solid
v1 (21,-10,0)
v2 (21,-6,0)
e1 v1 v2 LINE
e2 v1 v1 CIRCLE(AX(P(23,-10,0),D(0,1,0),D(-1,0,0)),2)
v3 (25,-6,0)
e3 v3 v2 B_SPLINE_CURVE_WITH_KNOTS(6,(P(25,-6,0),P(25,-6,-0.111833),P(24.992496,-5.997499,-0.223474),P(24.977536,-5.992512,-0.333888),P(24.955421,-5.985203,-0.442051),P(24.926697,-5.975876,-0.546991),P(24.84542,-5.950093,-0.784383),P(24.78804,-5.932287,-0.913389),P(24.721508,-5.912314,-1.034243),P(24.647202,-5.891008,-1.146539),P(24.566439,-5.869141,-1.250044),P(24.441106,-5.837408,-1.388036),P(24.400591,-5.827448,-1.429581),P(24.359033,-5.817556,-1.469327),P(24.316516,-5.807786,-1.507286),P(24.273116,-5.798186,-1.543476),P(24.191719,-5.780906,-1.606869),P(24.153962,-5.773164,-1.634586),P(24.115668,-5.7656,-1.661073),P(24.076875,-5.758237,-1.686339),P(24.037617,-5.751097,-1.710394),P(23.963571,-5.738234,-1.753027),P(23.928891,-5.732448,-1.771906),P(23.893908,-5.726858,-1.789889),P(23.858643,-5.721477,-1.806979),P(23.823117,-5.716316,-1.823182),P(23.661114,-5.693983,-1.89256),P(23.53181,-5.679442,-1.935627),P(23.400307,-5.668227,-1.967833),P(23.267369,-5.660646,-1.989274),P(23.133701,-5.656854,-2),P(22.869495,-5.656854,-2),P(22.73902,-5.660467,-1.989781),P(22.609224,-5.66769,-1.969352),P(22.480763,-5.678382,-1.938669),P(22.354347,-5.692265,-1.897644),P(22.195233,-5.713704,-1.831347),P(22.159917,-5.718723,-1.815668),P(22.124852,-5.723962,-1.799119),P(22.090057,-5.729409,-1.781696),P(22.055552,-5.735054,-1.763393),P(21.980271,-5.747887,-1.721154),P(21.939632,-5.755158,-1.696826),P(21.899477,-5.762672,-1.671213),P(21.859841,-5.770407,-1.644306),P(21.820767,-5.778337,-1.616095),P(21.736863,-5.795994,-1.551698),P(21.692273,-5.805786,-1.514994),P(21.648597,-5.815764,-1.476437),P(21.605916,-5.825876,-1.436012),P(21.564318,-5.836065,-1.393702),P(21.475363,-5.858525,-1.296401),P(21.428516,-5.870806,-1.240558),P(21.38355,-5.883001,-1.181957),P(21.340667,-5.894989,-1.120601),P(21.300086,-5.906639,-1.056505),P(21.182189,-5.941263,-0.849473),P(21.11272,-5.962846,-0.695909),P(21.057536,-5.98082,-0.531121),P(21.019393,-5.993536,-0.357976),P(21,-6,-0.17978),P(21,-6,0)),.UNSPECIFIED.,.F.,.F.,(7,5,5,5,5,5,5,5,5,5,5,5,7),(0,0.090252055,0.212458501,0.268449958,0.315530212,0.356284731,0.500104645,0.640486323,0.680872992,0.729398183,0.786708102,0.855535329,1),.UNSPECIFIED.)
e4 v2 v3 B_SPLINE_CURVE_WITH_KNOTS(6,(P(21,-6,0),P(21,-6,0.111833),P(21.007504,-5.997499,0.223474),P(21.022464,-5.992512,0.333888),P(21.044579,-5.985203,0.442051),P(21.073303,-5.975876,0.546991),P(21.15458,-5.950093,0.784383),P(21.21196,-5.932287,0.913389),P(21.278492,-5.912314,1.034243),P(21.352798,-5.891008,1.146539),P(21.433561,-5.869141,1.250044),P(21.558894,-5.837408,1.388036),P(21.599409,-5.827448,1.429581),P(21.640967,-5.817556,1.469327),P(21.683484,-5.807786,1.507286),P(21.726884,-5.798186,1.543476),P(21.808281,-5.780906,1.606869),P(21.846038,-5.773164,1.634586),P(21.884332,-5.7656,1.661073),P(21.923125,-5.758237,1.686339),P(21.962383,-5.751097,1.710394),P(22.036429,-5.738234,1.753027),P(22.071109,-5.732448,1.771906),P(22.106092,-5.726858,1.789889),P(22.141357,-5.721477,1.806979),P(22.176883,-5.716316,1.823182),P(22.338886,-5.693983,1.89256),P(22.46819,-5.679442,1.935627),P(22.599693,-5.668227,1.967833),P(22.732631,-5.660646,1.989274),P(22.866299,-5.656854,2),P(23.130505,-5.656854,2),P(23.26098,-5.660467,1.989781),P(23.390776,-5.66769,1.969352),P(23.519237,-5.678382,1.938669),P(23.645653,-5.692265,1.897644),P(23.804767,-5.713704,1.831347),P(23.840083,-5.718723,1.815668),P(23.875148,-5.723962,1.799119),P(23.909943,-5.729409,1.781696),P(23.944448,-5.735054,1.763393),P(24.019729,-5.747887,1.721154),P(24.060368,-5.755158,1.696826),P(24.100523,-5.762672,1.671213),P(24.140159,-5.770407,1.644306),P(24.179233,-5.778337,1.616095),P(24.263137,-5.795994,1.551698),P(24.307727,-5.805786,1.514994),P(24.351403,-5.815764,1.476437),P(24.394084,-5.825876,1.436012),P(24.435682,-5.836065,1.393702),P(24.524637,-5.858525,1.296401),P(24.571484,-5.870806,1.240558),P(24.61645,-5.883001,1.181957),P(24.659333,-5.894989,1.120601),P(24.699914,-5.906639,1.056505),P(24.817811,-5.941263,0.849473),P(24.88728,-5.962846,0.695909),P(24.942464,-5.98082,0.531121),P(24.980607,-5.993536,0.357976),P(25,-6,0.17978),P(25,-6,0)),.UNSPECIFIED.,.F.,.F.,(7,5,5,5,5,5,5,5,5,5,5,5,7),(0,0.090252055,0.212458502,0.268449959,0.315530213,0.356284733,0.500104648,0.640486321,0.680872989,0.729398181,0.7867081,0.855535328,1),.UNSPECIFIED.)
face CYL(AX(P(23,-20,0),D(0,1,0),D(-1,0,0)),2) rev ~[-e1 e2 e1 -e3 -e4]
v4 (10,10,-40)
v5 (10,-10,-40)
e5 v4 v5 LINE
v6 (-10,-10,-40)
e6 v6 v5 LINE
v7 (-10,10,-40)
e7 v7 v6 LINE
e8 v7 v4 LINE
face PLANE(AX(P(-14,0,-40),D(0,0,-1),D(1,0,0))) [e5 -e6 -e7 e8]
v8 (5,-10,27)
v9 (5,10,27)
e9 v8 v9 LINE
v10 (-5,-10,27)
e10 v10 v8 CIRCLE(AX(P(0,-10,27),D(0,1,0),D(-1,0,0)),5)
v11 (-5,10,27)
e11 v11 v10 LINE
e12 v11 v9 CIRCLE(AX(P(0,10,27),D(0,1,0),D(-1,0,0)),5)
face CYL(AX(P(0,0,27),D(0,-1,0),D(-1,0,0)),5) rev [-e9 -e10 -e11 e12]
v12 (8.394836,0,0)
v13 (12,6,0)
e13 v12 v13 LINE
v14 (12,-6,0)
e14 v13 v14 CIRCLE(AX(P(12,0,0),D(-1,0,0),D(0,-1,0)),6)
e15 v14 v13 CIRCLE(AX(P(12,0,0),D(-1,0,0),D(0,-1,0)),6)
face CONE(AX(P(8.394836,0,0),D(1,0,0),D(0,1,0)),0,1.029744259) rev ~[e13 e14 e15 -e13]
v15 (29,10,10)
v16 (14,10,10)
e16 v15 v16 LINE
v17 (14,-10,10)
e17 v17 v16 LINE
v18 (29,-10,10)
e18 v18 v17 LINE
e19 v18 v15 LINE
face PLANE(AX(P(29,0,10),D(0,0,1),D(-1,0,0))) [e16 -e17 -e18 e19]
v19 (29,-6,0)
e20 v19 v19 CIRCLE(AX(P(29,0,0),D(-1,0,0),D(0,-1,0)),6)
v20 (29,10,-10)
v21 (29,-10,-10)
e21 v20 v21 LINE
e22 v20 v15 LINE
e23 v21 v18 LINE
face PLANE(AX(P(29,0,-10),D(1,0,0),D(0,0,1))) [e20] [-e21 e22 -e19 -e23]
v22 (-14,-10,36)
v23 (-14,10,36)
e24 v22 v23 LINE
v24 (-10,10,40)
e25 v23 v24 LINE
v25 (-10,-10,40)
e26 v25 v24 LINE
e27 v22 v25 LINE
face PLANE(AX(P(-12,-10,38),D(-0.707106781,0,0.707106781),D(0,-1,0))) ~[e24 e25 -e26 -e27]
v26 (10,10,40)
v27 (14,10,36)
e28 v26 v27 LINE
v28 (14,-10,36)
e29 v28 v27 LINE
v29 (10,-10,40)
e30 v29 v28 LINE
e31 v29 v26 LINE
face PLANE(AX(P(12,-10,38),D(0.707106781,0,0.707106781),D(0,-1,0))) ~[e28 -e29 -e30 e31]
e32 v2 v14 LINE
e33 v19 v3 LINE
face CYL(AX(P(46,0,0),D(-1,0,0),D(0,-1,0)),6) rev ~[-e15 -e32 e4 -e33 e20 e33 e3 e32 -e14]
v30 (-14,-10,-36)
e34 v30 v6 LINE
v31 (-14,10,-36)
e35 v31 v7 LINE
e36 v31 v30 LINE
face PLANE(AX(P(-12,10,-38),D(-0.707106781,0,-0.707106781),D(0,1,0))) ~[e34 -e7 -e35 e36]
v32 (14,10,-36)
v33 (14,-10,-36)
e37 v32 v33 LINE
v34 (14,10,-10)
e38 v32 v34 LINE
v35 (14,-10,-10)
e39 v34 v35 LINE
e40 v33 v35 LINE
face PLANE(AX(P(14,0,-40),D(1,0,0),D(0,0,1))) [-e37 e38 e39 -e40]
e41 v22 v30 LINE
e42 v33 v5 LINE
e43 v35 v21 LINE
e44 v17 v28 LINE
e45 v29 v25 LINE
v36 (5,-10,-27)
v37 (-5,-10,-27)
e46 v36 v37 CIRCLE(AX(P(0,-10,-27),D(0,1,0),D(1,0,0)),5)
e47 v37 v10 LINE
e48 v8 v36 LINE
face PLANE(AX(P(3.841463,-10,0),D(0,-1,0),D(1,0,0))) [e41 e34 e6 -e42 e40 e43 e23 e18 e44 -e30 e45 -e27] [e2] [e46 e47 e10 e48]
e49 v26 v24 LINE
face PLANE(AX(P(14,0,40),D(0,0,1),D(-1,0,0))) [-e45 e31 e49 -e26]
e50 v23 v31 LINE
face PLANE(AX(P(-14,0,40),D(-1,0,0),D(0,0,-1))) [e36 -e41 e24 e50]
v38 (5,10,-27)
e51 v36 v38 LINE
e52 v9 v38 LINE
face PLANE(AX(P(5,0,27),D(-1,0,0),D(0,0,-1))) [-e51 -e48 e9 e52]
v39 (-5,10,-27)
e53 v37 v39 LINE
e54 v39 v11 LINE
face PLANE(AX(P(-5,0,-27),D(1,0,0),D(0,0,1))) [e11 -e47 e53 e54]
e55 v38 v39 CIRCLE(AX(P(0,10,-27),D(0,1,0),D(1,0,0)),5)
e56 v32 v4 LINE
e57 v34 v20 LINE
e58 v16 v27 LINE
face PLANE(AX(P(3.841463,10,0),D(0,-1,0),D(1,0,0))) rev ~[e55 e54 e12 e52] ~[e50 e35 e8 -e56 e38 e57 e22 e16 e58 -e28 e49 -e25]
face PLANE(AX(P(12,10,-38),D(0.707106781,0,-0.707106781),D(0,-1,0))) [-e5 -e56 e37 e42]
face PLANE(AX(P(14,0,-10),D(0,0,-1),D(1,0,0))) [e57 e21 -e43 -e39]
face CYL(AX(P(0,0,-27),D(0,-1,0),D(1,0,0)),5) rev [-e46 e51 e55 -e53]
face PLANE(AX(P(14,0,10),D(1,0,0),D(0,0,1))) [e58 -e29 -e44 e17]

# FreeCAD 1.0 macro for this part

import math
import FreeCAD as App
import Part
import Sketcher


def edges_at(feature, points):
    """Names of the edges that pass closest to the given points."""
    edges = feature.Shape.Edges
    near = lambda p: min(range(len(edges)), key=lambda i: edges[i].distToShape(Part.Vertex(*p))[0])
    return sorted({f"Edge{near(p) + 1}" for p in points})

doc = App.newDocument("Part")
body = doc.addObject("PartDesign::Body", "Body")

sketch1 = body.newObject("Sketcher::SketchObject", "Sketch")
sketch1.AttachmentSupport = (doc.getObject("XZ_Plane"), [""])
sketch1.MapMode = "FlatFace"
sketch1.addGeometry(Part.LineSegment(App.Vector(-14, 40, 0), App.Vector(-14, -40, 0)), False)
sketch1.addGeometry(Part.LineSegment(App.Vector(-14, -40, 0), App.Vector(14, -40, 0)), False)
sketch1.addGeometry(Part.LineSegment(App.Vector(14, -40, 0), App.Vector(14, -10, 0)), False)
sketch1.addGeometry(Part.LineSegment(App.Vector(14, -10, 0), App.Vector(29, -10, 0)), False)
sketch1.addGeometry(Part.LineSegment(App.Vector(29, -10, 0), App.Vector(29, 10, 0)), False)
sketch1.addGeometry(Part.LineSegment(App.Vector(29, 10, 0), App.Vector(14, 10, 0)), False)
sketch1.addGeometry(Part.LineSegment(App.Vector(14, 10, 0), App.Vector(14, 40, 0)), False)
sketch1.addGeometry(Part.LineSegment(App.Vector(14, 40, 0), App.Vector(-14, 40, 0)), False)
sketch1.addGeometry(Part.LineSegment(App.Vector(-5, -27, 0), App.Vector(-5, 27, 0)), False)
sketch1.addGeometry(Part.ArcOfCircle(Part.Circle(App.Vector(0, 27, 0), App.Vector(0, 0, 1), 5), math.radians(0), math.radians(180)), False)
sketch1.addGeometry(Part.LineSegment(App.Vector(5, 27, 0), App.Vector(5, -27, 0)), False)
sketch1.addGeometry(Part.ArcOfCircle(Part.Circle(App.Vector(0, -27, 0), App.Vector(0, 0, 1), 5), math.radians(180), math.radians(360)), False)
sketch1.addConstraint(Sketcher.Constraint("Coincident", 0, 2, 1, 1))
sketch1.addConstraint(Sketcher.Constraint("Coincident", 1, 2, 2, 1))
sketch1.addConstraint(Sketcher.Constraint("Coincident", 2, 2, 3, 1))
sketch1.addConstraint(Sketcher.Constraint("Coincident", 3, 2, 4, 1))
sketch1.addConstraint(Sketcher.Constraint("Coincident", 4, 2, 5, 1))
sketch1.addConstraint(Sketcher.Constraint("Coincident", 5, 2, 6, 1))
sketch1.addConstraint(Sketcher.Constraint("Coincident", 6, 2, 7, 1))
sketch1.addConstraint(Sketcher.Constraint("Coincident", 7, 2, 0, 1))
sketch1.addConstraint(Sketcher.Constraint("Tangent", 8, 2, 9, 2))
sketch1.addConstraint(Sketcher.Constraint("Tangent", 9, 1, 10, 1))
sketch1.addConstraint(Sketcher.Constraint("Tangent", 10, 2, 11, 2))
sketch1.addConstraint(Sketcher.Constraint("Tangent", 11, 1, 8, 1))
sketch1.addConstraint(Sketcher.Constraint("Vertical", 0))
sketch1.addConstraint(Sketcher.Constraint("Horizontal", 1))
sketch1.addConstraint(Sketcher.Constraint("Vertical", 2))
sketch1.addConstraint(Sketcher.Constraint("Horizontal", 3))
sketch1.addConstraint(Sketcher.Constraint("Vertical", 4))
sketch1.addConstraint(Sketcher.Constraint("Horizontal", 5))
sketch1.addConstraint(Sketcher.Constraint("Vertical", 6))
sketch1.addConstraint(Sketcher.Constraint("Horizontal", 7))
sketch1.addConstraint(Sketcher.Constraint("Vertical", 8))
sketch1.addConstraint(Sketcher.Constraint("Vertical", 10))
sketch1.addConstraint(Sketcher.Constraint("Symmetric", 9, 3, 11, 3, -1, 1))
sketch1.addConstraint(Sketcher.Constraint("Symmetric", 0, 2, 6, 2, -1, 1))
sketch1.addConstraint(Sketcher.Constraint("Symmetric", 2, 2, 5, 2, -1))
sketch1.addConstraint(Sketcher.Constraint("Radius", 9, 5.0))
sketch1.addConstraint(Sketcher.Constraint("DistanceX", 1, 1, 1, 2, 28.0))
sketch1.addConstraint(Sketcher.Constraint("DistanceX", 3, 1, 3, 2, 15.0))
sketch1.addConstraint(Sketcher.Constraint("DistanceY", 0, 2, 0, 1, 80.0))
sketch1.addConstraint(Sketcher.Constraint("DistanceY", 2, 1, 2, 2, 30.0))
sketch1.addConstraint(Sketcher.Constraint("DistanceY", 8, 1, 8, 2, 54.0))
pad1 = body.newObject("PartDesign::Pad", "Pad")
pad1.Profile = sketch1
pad1.Type = "TwoLengths"
pad1.Length = 10
pad1.Length2 = 10
doc.recompute()

chamfer = body.newObject("PartDesign::Chamfer", "Chamfer")
chamfer.Base = (pad1, edges_at(pad1, [
    (14, 0, 40),
    (-14, 0, 40),
    (14, 0, -40),
    (-14, 0, -40),
]))
chamfer.Size = 4

sketch2 = body.newObject("Sketcher::SketchObject", "Sketch001")
sketch2.AttachmentSupport = (doc.getObject("XZ_Plane"), [""])
sketch2.MapMode = "FlatFace"
sketch2.AttachmentOffset = App.Placement(App.Vector(0, 0, 10), App.Rotation())
sketch2.addGeometry(Part.Circle(App.Vector(23, 0, 0), App.Vector(0, 0, 1), 2), False)
sketch2.addConstraint(Sketcher.Constraint("PointOnObject", 0, 3, -1))
sketch2.addConstraint(Sketcher.Constraint("Diameter", 0, 4.0))
sketch2.addConstraint(Sketcher.Constraint("DistanceX", -1, 1, 0, 3, 23.0))
doc.recompute()
hole = body.newObject("PartDesign::Hole", "Hole")
hole.Profile = sketch2
hole.ThreadType = "None"
hole.Diameter = 4
hole.DepthType = "Dimension"
hole.Depth = 10
hole.DrillPoint = "Angled"
hole.DrillPointAngle = 118

sketch3 = body.newObject("Sketcher::SketchObject", "Sketch002")
sketch3.AttachmentSupport = (doc.getObject("YZ_Plane"), [""])
sketch3.MapMode = "FlatFace"
sketch3.AttachmentOffset = App.Placement(App.Vector(0, 0, 29), App.Rotation())
sketch3.addGeometry(Part.Circle(App.Vector(0, 0, 0), App.Vector(0, 0, 1), 6), False)
sketch3.addConstraint(Sketcher.Constraint("Coincident", 0, 3, -1, 1))
sketch3.addConstraint(Sketcher.Constraint("Diameter", 0, 12.0))
doc.recompute()
hole2 = body.newObject("PartDesign::Hole", "Hole001")
hole2.Profile = sketch3
hole2.ThreadType = "None"
hole2.Diameter = 12
hole2.DepthType = "Dimension"
hole2.Depth = 17
hole2.DrillPoint = "Angled"
hole2.DrillPointAngle = 118

doc.recompute()
